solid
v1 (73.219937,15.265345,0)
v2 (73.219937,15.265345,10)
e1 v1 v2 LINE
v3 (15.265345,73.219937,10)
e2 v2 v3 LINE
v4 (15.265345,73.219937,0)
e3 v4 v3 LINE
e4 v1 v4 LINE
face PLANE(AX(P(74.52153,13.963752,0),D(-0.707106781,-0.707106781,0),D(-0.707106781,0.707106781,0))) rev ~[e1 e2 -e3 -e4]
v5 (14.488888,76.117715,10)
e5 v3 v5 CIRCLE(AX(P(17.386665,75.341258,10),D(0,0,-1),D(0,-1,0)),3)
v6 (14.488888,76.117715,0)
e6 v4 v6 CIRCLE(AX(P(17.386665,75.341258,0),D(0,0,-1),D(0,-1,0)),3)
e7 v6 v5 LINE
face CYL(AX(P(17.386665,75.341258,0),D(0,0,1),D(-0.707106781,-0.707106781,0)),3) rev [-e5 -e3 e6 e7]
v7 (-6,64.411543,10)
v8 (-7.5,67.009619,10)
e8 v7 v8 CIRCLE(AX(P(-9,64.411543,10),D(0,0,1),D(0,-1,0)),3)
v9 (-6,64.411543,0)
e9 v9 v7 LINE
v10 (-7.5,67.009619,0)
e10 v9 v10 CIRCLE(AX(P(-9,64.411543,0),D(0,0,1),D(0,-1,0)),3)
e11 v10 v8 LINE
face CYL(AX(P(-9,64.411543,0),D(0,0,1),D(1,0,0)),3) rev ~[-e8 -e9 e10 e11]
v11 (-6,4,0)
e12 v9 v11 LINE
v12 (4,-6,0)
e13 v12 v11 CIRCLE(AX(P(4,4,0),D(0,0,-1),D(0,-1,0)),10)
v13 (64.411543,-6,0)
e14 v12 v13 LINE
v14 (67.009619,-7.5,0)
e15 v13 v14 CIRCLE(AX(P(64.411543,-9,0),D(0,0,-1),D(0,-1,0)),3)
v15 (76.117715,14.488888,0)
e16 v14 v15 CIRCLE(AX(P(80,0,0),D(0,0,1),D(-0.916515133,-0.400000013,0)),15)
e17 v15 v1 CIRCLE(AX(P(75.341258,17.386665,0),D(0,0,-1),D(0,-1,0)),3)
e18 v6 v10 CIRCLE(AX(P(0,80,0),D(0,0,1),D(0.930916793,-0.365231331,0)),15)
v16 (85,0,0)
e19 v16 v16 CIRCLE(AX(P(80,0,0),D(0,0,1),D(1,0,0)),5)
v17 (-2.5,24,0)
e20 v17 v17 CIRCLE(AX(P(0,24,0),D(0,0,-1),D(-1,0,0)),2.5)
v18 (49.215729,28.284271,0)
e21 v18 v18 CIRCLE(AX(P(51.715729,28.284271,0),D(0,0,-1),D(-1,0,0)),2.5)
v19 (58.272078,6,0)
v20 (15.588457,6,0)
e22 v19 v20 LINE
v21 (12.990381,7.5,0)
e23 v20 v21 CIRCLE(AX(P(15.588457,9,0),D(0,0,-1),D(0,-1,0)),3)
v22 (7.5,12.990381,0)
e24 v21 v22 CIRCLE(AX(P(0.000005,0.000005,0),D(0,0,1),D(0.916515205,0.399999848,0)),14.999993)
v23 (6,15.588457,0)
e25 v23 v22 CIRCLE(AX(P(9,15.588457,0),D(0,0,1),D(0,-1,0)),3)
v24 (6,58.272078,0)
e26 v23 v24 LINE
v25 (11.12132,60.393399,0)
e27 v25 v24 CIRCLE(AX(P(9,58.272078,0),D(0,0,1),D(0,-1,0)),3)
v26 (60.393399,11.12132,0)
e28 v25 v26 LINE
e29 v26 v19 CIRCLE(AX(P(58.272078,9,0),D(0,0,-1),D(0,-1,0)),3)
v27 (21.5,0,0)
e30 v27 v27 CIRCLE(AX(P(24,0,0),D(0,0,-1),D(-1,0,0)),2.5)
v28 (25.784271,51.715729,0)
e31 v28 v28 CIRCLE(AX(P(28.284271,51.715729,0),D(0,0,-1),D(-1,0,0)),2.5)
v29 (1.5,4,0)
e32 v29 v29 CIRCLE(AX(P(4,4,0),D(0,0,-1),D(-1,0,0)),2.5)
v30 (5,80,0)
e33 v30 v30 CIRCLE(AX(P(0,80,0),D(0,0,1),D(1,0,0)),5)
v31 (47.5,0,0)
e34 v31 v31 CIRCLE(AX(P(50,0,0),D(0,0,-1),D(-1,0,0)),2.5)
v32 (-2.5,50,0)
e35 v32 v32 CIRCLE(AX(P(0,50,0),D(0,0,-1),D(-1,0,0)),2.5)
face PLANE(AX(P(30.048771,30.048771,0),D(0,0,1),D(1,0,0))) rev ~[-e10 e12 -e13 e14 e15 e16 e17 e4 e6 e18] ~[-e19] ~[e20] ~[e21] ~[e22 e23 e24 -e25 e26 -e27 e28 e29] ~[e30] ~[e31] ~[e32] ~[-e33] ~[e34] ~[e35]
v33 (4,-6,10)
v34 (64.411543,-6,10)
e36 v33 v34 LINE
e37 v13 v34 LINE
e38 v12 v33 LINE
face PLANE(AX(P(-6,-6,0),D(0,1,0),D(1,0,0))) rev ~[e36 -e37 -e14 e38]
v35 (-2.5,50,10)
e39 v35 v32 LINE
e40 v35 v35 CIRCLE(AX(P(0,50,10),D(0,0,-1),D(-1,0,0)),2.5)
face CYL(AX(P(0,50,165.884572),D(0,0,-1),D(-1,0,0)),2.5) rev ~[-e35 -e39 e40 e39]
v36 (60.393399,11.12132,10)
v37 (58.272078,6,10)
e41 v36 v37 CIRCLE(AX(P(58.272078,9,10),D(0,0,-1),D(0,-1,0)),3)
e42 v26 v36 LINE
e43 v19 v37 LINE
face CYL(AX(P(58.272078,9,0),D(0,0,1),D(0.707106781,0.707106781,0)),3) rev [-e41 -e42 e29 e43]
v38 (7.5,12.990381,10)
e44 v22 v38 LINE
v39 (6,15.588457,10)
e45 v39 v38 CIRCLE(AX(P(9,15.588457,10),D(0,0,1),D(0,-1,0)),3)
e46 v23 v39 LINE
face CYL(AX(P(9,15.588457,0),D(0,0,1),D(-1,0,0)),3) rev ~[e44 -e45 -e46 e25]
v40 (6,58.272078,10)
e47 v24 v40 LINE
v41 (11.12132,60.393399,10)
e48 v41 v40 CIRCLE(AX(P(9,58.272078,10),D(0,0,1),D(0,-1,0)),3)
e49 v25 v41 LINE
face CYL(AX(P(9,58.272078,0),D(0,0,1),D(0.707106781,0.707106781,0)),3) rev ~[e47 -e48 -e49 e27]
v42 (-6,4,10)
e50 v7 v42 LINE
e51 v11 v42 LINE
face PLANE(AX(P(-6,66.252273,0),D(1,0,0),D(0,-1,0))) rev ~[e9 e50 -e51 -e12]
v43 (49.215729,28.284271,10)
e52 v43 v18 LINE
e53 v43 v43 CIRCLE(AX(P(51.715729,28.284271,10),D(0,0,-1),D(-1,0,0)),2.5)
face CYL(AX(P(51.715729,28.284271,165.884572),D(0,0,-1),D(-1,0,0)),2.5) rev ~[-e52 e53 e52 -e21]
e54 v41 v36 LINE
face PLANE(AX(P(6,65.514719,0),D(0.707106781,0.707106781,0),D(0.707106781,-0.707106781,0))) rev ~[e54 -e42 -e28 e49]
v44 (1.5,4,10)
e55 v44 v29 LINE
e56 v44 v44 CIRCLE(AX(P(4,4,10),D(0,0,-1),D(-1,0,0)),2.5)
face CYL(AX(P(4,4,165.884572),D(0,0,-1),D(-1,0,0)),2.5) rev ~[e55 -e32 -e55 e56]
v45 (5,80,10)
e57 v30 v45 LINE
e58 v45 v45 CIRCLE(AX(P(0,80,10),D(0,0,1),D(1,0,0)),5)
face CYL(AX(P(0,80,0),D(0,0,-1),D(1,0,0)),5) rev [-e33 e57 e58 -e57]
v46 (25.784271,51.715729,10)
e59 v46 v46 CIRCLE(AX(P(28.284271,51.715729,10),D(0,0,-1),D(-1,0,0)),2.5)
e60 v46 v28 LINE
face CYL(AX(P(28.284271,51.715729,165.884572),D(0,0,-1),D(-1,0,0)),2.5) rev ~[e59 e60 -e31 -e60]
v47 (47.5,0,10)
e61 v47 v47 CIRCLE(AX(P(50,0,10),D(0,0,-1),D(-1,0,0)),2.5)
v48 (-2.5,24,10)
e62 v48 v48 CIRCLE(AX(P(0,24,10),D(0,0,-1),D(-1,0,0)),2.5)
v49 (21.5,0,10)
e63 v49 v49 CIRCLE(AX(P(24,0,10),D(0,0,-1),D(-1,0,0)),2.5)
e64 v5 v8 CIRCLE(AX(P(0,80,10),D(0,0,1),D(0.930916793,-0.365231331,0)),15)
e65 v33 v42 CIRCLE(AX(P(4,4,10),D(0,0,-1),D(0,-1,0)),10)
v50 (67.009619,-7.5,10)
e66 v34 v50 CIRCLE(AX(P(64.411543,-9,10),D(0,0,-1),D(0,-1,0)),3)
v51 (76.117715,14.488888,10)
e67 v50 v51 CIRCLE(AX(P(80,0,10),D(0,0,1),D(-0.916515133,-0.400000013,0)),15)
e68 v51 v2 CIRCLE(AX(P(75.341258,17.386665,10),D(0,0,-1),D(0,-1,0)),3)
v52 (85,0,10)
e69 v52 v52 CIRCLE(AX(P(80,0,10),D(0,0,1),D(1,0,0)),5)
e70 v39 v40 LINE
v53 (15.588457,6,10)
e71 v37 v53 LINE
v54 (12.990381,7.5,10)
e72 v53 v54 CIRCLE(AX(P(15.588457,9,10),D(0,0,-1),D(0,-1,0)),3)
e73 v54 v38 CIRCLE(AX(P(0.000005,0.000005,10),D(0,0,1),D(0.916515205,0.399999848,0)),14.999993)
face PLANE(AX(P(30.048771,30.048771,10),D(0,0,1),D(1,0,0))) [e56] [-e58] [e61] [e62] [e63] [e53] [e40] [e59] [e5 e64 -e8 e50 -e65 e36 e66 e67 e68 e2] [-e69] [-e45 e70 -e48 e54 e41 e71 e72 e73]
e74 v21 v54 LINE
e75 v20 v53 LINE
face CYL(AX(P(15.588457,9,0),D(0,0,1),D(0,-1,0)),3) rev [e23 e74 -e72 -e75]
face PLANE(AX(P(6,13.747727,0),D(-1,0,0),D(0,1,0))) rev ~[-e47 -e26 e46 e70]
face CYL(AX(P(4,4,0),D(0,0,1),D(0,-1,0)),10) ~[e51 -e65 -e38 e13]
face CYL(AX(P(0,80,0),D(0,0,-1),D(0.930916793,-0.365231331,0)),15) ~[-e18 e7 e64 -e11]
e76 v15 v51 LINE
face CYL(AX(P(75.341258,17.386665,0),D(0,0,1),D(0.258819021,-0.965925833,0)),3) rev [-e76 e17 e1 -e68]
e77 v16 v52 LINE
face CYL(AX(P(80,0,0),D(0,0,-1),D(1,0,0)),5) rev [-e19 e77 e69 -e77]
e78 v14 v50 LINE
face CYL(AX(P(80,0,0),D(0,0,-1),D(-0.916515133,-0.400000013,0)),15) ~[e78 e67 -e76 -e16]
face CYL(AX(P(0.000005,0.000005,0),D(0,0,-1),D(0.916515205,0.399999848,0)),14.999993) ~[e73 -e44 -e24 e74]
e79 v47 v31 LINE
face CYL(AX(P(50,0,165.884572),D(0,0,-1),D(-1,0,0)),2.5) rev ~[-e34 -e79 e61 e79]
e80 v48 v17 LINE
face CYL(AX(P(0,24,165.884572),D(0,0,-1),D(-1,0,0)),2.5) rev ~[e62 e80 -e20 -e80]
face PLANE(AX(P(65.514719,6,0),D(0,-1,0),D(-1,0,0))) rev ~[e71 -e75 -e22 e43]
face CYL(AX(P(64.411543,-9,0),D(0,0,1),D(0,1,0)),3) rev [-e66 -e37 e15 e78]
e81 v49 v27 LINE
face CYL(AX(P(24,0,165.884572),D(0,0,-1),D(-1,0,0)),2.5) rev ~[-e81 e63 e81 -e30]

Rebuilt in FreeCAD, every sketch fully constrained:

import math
import FreeCAD as App
import Part
import Sketcher

V = App.Vector
Q = App.Units.Quantity


def edges_at(feature, points):
    """Names of the edges that pass closest to the given points."""
    edges = feature.Shape.Edges
    near = lambda p: min(range(len(edges)), key=lambda i: edges[i].distToShape(Part.Vertex(*p))[0])
    return sorted({f"Edge{near(p) + 1}" for p in points})

doc = App.newDocument("Part")
params = doc.addObject("Spreadsheet::Sheet", "Params")
for row, (alias, value) in enumerate([
    ("sketch1_diameter", "10 mm"),
    ("sketch1_radius", "15 mm"),
    ("pad1_length", "10 mm"),
    ("fillet_radius", "10 mm"),
    ("fillet2_radius", "3 mm"),
    ("sketch2_diameter", "5 mm"),
    ("hole_diameter", "5 mm"),
], start=1):
    params.set(f"A{row}", alias)
    params.set(f"B{row}", "=" + value)
    params.setAlias(f"B{row}", alias)

body = doc.addObject("PartDesign::Body", "Body")

# Sketch on XY plane
sketch1 = body.newObject("Sketcher::SketchObject", "Sketch")
sketch1.AttachmentSupport = (doc.getObject("XY_Plane"), [""])
sketch1.MapMode = "FlatFace"
sketch1.addGeometry([
    Part.LineSegment(V(-6, -6, 0), V(66, -6, 0)),  # 0
    Part.ArcOfCircle(Part.Circle(V(80, 0, 0), V(0, 0, 1), 15), math.radians(-156), math.radians(111)),  # 1
    Part.LineSegment(V(75, 14, 0), V(14, 75, 0)),  # 2
    Part.ArcOfCircle(Part.Circle(V(0, 80, 0), V(0, 0, 1), 15), math.radians(-21), math.radians(246)),  # 3
    Part.LineSegment(V(-6, 66, 0), V(-6, -6, 0)),  # 4
    Part.LineSegment(V(6, 66, 0), V(66, 6, 0)),  # 5
    Part.LineSegment(V(66, 6, 0), V(14, 6, 0)),  # 6
    Part.ArcOfCircle(Part.Circle(V(0, 0, 0), V(0, 0, 1), 15), math.radians(24), math.radians(66)),  # 7
    Part.LineSegment(V(6, 14, 0), V(6, 66, 0)),  # 8
    Part.Circle(V(80, 0, 0), V(0, 0, 1), 5),  # 9
    Part.Circle(V(0, 80, 0), V(0, 0, 1), 5),  # 10
], False)
sketch1.addConstraint([
    Sketcher.Constraint("Coincident", 0, 2, 1, 1),
    Sketcher.Constraint("Coincident", 1, 2, 2, 1),
    Sketcher.Constraint("Coincident", 2, 2, 3, 1),
    Sketcher.Constraint("Coincident", 3, 2, 4, 1),
    Sketcher.Constraint("Coincident", 4, 2, 0, 1),
    Sketcher.Constraint("Coincident", 5, 2, 6, 1),
    Sketcher.Constraint("Coincident", 6, 2, 7, 1),
    Sketcher.Constraint("Coincident", 7, 2, 8, 1),
    Sketcher.Constraint("Coincident", 8, 2, 5, 1),
    Sketcher.Constraint("Horizontal", 0),
    Sketcher.Constraint("Vertical", 4),
    Sketcher.Constraint("Horizontal", 6),
    Sketcher.Constraint("Vertical", 8),
    Sketcher.Constraint("Coincident", 7, 3, -1, 1),
    Sketcher.Constraint("Coincident", 9, 3, 1, 3),
    Sketcher.Constraint("Coincident", 10, 3, 3, 3),
    Sketcher.Constraint("Equal", 1, 3),
    Sketcher.Constraint("Equal", 9, 10),
    Sketcher.Constraint("PointOnObject", 1, 3, -1),
    Sketcher.Constraint("PointOnObject", 3, 3, -2),
    Sketcher.Constraint("Parallel", 2, 5),
    Sketcher.Constraint("Equal", 0, 4),
    Sketcher.Constraint("Equal", 6, 8),
    Sketcher.Constraint("Diameter", 9, 10.0),
    Sketcher.Constraint("Radius", 1, 15.0),
    Sketcher.Constraint("Angle", 2, Q("135 deg")),
    Sketcher.Constraint("DistanceX", -1, 1, 1, 3, 80.0),
    Sketcher.Constraint("DistanceY", -1, 1, 3, 3, 80.0),
    Sketcher.Constraint("DistanceY", 0, 2, -1, 1, 6.0),
    Sketcher.Constraint("DistanceY", -1, 1, 5, 2, 6.0),
    Sketcher.Constraint("Radius", 7, 14.999993),
    Sketcher.Constraint("Distance", 2, 85.641631),
    Sketcher.Constraint("DistanceX", 6, 2, 6, 1, 51.766992),
])
sketch1.setExpression("Constraints[23]", "Params.sketch1_diameter")
sketch1.setExpression("Constraints[24]", "Params.sketch1_radius")
pad1 = body.newObject("PartDesign::Pad", "Pad")
pad1.Profile = sketch1
pad1.setExpression("Length", "Params.pad1_length")
doc.recompute()

fillet = body.newObject("PartDesign::Fillet", "Fillet")
fillet.Base = (pad1, edges_at(pad1, [(-6, -6, 5)]))
fillet.setExpression("Radius", "Params.fillet_radius")
doc.recompute()

fillet2 = body.newObject("PartDesign::Fillet", "Fillet001")
fillet2.Base = (fillet, edges_at(fillet, [
    (13.964, 74.522, 5),
    (74.522, 13.964, 5),
    (66.252, -6, 5),
    (-6, 66.252, 5),
    (65.515, 6, 5),
    (6, 65.515, 5),
    (6, 13.748, 5),
    (13.748, 6, 5),
]))
fillet2.setExpression("Radius", "Params.fillet2_radius")

# Sketch on XY plane
sketch2 = body.newObject("Sketcher::SketchObject", "Sketch001")
sketch2.AttachmentSupport = (doc.getObject("XY_Plane"), [""])
sketch2.MapMode = "FlatFace"
sketch2.AttachmentOffset = App.Placement(V(0, 0, 10), App.Rotation())
sketch2.addGeometry([
    Part.Circle(V(0, 50, 0), V(0, 0, 1), 2.5),  # 0
    Part.Circle(V(0, 24, 0), V(0, 0, 1), 2.5),  # 1
    Part.Circle(V(28.3, 51.7, 0), V(0, 0, 1), 2.5),  # 2
    Part.Circle(V(51.7, 28.3, 0), V(0, 0, 1), 2.5),  # 3
    Part.Circle(V(50, 0, 0), V(0, 0, 1), 2.5),  # 4
    Part.Circle(V(24, 0, 0), V(0, 0, 1), 2.5),  # 5
    Part.Circle(V(4, 4, 0), V(0, 0, 1), 2.5),  # 6
], False)
sketch2.addConstraint([
    Sketcher.Constraint("Equal", 0, 1),
    Sketcher.Constraint("Equal", 1, 2),
    Sketcher.Constraint("Equal", 2, 3),
    Sketcher.Constraint("Equal", 3, 4),
    Sketcher.Constraint("Equal", 4, 5),
    Sketcher.Constraint("Equal", 5, 6),
    Sketcher.Constraint("PointOnObject", 0, 3, -2),
    Sketcher.Constraint("PointOnObject", 1, 3, -2),
    Sketcher.Constraint("PointOnObject", 4, 3, -1),
    Sketcher.Constraint("PointOnObject", 5, 3, -1),
    Sketcher.Constraint("Diameter", 0, 5.0),
    Sketcher.Constraint("DistanceY", -1, 1, 0, 3, 50.0),
    Sketcher.Constraint("DistanceY", -1, 1, 1, 3, 24.0),
    Sketcher.Constraint("DistanceX", -1, 1, 4, 3, 50.0),
    Sketcher.Constraint("DistanceX", -1, 1, 5, 3, 24.0),
    Sketcher.Constraint("DistanceX", -1, 1, 6, 3, 4.0),
    Sketcher.Constraint("DistanceY", -1, 1, 6, 3, 4.0),
    Sketcher.Constraint("DistanceX", -1, 1, 2, 3, 28.284271),
    Sketcher.Constraint("DistanceY", -1, 1, 2, 3, 51.715729),
    Sketcher.Constraint("DistanceX", -1, 1, 3, 3, 51.715729),
    Sketcher.Constraint("DistanceY", -1, 1, 3, 3, 28.284271),
])
sketch2.setExpression("Constraints[10]", "Params.sketch2_diameter")
doc.recompute()
hole = body.newObject("PartDesign::Hole", "Hole")
hole.Profile = sketch2
hole.ThreadType = "None"
hole.setExpression("Diameter", "Params.hole_diameter")
hole.DepthType = "ThroughAll"

doc.recompute()
